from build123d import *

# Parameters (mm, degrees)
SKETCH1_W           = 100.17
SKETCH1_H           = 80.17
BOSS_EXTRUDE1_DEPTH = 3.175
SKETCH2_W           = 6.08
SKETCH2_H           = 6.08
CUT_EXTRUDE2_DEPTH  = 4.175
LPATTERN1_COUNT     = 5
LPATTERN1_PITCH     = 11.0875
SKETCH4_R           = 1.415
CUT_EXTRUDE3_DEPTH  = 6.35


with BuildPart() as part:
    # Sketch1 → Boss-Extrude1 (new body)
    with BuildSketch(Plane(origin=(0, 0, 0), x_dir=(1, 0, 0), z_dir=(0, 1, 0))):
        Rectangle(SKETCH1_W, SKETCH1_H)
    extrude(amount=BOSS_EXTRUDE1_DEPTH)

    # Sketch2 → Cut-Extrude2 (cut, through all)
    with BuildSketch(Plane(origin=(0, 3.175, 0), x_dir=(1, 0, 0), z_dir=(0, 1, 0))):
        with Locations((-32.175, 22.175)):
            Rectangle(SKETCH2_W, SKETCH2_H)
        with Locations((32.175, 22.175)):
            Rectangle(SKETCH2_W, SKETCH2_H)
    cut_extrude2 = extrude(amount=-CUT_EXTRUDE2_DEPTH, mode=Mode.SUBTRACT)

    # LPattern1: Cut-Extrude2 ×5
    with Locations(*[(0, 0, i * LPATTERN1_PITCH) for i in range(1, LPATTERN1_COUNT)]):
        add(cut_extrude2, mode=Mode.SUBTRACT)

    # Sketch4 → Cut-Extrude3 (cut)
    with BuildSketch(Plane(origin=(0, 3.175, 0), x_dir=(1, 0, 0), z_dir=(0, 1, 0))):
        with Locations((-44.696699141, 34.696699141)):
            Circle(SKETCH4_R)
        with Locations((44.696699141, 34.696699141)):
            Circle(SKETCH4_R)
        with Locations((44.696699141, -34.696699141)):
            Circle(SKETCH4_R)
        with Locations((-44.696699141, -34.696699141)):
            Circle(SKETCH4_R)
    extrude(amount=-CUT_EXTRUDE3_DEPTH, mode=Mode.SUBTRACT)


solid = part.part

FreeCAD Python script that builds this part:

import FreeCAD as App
import Part
import Sketcher
from FreeCAD import Vector
Q = App.Units.Quantity


def add_polygon(sketch, points):
    """Adds a closed chain of lines whose ends are joined by coincident constraints."""
    first, n = sketch.GeometryCount, len(points)
    for a, b in zip(points, points[1:] + points[:1]):
        sketch.addGeometry(Part.LineSegment(App.Vector(*a, 0), App.Vector(*b, 0)), False)
    for i in range(n):
        sketch.addConstraint(Sketcher.Constraint("Coincident", first + i, 2, first + (i + 1) % n, 1))

doc = App.newDocument("Part")
body = doc.addObject("PartDesign::Body", "Body")

sketch1 = doc.addObject("Sketcher::SketchObject", "Sketch")
body.addObject(sketch1)
sketch1.AttachmentSupport = (doc.XZ_Plane, [""])
sketch1.MapMode = "FlatFace"
add_polygon(sketch1, [(-50, -40), (-50, 40), (50, 40), (50, -40)])
sketch1.addConstraint(Sketcher.Constraint("Vertical", 0))
sketch1.addConstraint(Sketcher.Constraint("Horizontal", 1))
sketch1.addConstraint(Sketcher.Constraint("Vertical", 2))
sketch1.addConstraint(Sketcher.Constraint("Horizontal", 3))
sketch1.addConstraint(Sketcher.Constraint("Symmetric", 0, 2, 2, 2, -1, 1))
sketch1.addConstraint(Sketcher.Constraint("DistanceX", 1, 1, 1, 2, Q("100.17 mm")))
sketch1.addConstraint(Sketcher.Constraint("DistanceY", 0, 1, 0, 2, Q("80.17 mm")))
pad1 = doc.addObject("PartDesign::Pad", "Pad")
body.addObject(pad1)
pad1.Profile = sketch1
pad1.Length = Q("0.125 in")
pad1.Reversed = True

sketch2 = doc.addObject("Sketcher::SketchObject", "Sketch001")
body.addObject(sketch2)
sketch2.AttachmentSupport = (doc.XZ_Plane, [""])
sketch2.MapMode = "FlatFace"
sketch2.AttachmentOffset = App.Placement(Vector(0, 0, -0.125 * 25.4), App.Rotation())
add_polygon(sketch2, [(-35, -25), (-35, -19), (-29, -19), (-29, -25)])
add_polygon(sketch2, [(29, -25), (29, -19), (35, -19), (35, -25)])
sketch2.addConstraint(Sketcher.Constraint("Vertical", 0))
sketch2.addConstraint(Sketcher.Constraint("Horizontal", 1))
sketch2.addConstraint(Sketcher.Constraint("Vertical", 2))
sketch2.addConstraint(Sketcher.Constraint("Horizontal", 3))
sketch2.addConstraint(Sketcher.Constraint("Vertical", 4))
sketch2.addConstraint(Sketcher.Constraint("Horizontal", 5))
sketch2.addConstraint(Sketcher.Constraint("Vertical", 6))
sketch2.addConstraint(Sketcher.Constraint("Horizontal", 7))
sketch2.addConstraint(Sketcher.Constraint("Symmetric", 1, 2, 4, 2, -2))
sketch2.addConstraint(Sketcher.Constraint("Symmetric", 3, 2, 6, 2, -2))
sketch2.addConstraint(Sketcher.Constraint("Equal", 7, 0))
sketch2.addConstraint(Sketcher.Constraint("DistanceX", 1, 1, 1, 2, Q("6.08 mm")))
sketch2.addConstraint(Sketcher.Constraint("DistanceX", 0, 2, -1, 1, Q("35.215 mm")))
sketch2.addConstraint(Sketcher.Constraint("DistanceY", 0, 2, -1, 1, Q("19.135 mm")))
pocket1 = doc.addObject("PartDesign::Pocket", "Pocket")
body.addObject(pocket1)
pocket1.Profile = sketch2
pocket1.Type = "ThroughAll"
pocket1.Reversed = True
doc.recompute()

linearpattern = doc.addObject("PartDesign::LinearPattern", "LinearPattern")
body.addObject(linearpattern)
linearpattern.Originals = [pocket1]
linearpattern.Direction = (doc.Z_Axis, [""])
linearpattern.Mode = "offset"
linearpattern.Offset = 11.0875
linearpattern.Occurrences = 5
body.Tip = linearpattern

sketch3 = doc.addObject("Sketcher::SketchObject", "Sketch002")
body.addObject(sketch3)
sketch3.AttachmentSupport = (doc.XZ_Plane, [""])
sketch3.MapMode = "FlatFace"
sketch3.AttachmentOffset = App.Placement(Vector(0, 0, -0.125 * 25.4), App.Rotation())
sketch3.addGeometry(Part.Circle(Vector(-44.7, -34.7, 0), Vector(0, 0, 1), 1.4), False)
sketch3.addGeometry(Part.Circle(Vector(44.7, -34.7, 0), Vector(0, 0, 1), 1.4), False)
sketch3.addGeometry(Part.Circle(Vector(44.7, 34.7, 0), Vector(0, 0, 1), 1.4), False)
sketch3.addGeometry(Part.Circle(Vector(-44.7, 34.7, 0), Vector(0, 0, 1), 1.4), False)
sketch3.addConstraint(Sketcher.Constraint("Equal", 0, 1))
sketch3.addConstraint(Sketcher.Constraint("Equal", 1, 2))
sketch3.addConstraint(Sketcher.Constraint("Equal", 2, 3))
sketch3.addConstraint(Sketcher.Constraint("Symmetric", 0, 3, 2, 3, -1, 1))
sketch3.addConstraint(Sketcher.Constraint("Symmetric", 1, 3, 3, 3, -1, 1))
sketch3.addConstraint(Sketcher.Constraint("Symmetric", 0, 3, 1, 3, -2))
sketch3.addConstraint(Sketcher.Constraint("Diameter", 0, Q("2.83 mm")))
sketch3.addConstraint(Sketcher.Constraint("DistanceX", 0, 3, -1, 1, Q("44.696699 mm")))
sketch3.addConstraint(Sketcher.Constraint("DistanceY", 0, 3, -1, 1, Q("34.696699 mm")))
pocket2 = doc.addObject("PartDesign::Pocket", "Pocket001")
body.addObject(pocket2)
pocket2.Profile = sketch3
pocket2.Length = Q("0.25 in")
pocket2.Reversed = True

doc.recompute()
